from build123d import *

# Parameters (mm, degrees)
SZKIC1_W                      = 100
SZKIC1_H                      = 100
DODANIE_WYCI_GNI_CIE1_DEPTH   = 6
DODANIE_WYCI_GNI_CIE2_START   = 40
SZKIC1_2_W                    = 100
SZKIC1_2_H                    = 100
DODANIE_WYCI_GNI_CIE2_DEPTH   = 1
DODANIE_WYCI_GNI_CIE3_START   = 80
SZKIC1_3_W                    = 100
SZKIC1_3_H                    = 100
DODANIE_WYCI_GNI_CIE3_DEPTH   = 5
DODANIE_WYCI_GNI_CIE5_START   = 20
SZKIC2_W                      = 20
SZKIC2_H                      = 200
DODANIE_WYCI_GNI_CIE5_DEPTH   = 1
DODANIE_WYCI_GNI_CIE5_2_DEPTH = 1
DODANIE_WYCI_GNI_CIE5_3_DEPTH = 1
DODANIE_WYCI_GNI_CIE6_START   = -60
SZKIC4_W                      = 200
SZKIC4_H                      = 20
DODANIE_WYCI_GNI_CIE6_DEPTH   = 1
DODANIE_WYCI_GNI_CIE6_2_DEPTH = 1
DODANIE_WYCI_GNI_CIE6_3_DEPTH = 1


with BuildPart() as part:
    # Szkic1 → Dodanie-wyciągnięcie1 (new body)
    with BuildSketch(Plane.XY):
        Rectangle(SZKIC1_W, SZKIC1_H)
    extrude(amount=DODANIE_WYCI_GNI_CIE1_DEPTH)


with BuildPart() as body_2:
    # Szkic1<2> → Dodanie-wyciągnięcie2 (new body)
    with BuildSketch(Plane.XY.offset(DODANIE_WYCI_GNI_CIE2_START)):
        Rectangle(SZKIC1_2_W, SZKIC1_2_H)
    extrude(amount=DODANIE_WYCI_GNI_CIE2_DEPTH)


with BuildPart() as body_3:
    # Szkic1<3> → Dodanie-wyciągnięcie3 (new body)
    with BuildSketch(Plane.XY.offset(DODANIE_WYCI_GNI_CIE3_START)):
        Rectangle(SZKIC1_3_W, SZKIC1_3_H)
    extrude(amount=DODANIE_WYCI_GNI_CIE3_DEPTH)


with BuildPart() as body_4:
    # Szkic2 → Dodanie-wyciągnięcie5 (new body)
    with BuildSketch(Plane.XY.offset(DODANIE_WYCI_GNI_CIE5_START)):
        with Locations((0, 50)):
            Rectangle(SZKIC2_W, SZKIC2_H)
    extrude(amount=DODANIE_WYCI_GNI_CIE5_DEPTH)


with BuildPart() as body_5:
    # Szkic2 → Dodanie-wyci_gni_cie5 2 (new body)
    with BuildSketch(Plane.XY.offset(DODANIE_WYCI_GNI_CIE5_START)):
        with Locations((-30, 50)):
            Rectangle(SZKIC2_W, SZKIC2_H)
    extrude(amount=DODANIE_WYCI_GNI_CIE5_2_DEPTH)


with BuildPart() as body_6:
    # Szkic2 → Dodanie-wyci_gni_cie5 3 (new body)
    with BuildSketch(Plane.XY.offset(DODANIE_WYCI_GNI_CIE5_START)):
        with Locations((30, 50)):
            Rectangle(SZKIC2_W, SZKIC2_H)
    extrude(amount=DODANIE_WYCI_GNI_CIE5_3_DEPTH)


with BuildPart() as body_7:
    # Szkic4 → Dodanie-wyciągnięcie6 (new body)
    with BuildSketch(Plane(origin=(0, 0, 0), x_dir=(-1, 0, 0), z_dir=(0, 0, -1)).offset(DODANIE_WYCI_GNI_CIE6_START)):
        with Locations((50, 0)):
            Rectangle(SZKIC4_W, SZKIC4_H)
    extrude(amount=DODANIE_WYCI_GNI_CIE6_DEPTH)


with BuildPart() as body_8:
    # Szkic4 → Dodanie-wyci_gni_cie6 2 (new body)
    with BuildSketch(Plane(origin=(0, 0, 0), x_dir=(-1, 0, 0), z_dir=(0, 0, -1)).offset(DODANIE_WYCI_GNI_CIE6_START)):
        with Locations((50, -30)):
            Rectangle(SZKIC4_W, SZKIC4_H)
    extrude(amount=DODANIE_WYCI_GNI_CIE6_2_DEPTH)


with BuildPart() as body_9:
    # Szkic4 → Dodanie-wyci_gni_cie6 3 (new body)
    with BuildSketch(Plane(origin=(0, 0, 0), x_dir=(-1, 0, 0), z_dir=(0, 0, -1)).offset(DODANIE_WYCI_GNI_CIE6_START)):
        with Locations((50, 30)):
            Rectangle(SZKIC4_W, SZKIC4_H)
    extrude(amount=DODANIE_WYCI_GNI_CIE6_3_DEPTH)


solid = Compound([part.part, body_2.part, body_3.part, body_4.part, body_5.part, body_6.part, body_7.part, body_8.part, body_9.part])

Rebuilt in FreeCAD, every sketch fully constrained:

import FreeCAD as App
import Part
import Sketcher
from FreeCAD import Vector


def add_polygon(sketch, points):
    """Adds a closed chain of lines whose ends are joined by coincident constraints."""
    first, n = sketch.GeometryCount, len(points)
    for a, b in zip(points, points[1:] + points[:1]):
        sketch.addGeometry(Part.LineSegment(App.Vector(*a, 0), App.Vector(*b, 0)), False)
    for i in range(n):
        sketch.addConstraint(Sketcher.Constraint("Coincident", first + i, 2, first + (i + 1) % n, 1))

doc = App.newDocument("Part")
body = doc.addObject("PartDesign::Body", "Body")

# Sketch on XY plane
sketch1 = body.newObject("Sketcher::SketchObject", "Sketch")
sketch1.AttachmentSupport = (doc.getObject("XY_Plane"), [""])
sketch1.MapMode = "FlatFace"
add_polygon(sketch1, [(-50, 50), (-50, -50), (50, -50), (50, 50)])  # lines 0-3
sketch1.addConstraint(Sketcher.Constraint("Vertical", 0))
sketch1.addConstraint(Sketcher.Constraint("Horizontal", 1))
sketch1.addConstraint(Sketcher.Constraint("Vertical", 2))
sketch1.addConstraint(Sketcher.Constraint("Horizontal", 3))
sketch1.addConstraint(Sketcher.Constraint("Symmetric", 0, 2, 2, 2, -1, 1))
sketch1.addConstraint(Sketcher.Constraint("Equal", 3, 0))
sketch1.addConstraint(Sketcher.Constraint("DistanceX", 1, 1, 1, 2, 100.0))
pad1 = body.newObject("PartDesign::Pad", "Pad")
pad1.Profile = sketch1
pad1.Length = 6
body2 = doc.addObject("PartDesign::Body", "Body001")

# Sketch on XY plane
sketch2 = body2.newObject("Sketcher::SketchObject", "Sketch001")
sketch2.AttachmentSupport = (doc.getObject("XY_Plane001"), [""])
sketch2.MapMode = "FlatFace"
sketch2.AttachmentOffset = App.Placement(Vector(0, 0, 40), App.Rotation())
add_polygon(sketch2, [(-50, 50), (-50, -50), (50, -50), (50, 50)])  # lines 0-3
sketch2.addConstraint(Sketcher.Constraint("Vertical", 0))
sketch2.addConstraint(Sketcher.Constraint("Horizontal", 1))
sketch2.addConstraint(Sketcher.Constraint("Vertical", 2))
sketch2.addConstraint(Sketcher.Constraint("Horizontal", 3))
sketch2.addConstraint(Sketcher.Constraint("Symmetric", 0, 2, 2, 2, -1, 1))
sketch2.addConstraint(Sketcher.Constraint("Equal", 3, 0))
sketch2.addConstraint(Sketcher.Constraint("DistanceX", 1, 1, 1, 2, 100.0))
pad2 = body2.newObject("PartDesign::Pad", "Pad001")
pad2.Profile = sketch2
pad2.Length = 1
body3 = doc.addObject("PartDesign::Body", "Body002")

# Sketch on XY plane
sketch3 = body3.newObject("Sketcher::SketchObject", "Sketch002")
sketch3.AttachmentSupport = (doc.getObject("XY_Plane002"), [""])
sketch3.MapMode = "FlatFace"
sketch3.AttachmentOffset = App.Placement(Vector(0, 0, 80), App.Rotation())
add_polygon(sketch3, [(-50, 50), (-50, -50), (50, -50), (50, 50)])  # lines 0-3
sketch3.addConstraint(Sketcher.Constraint("Vertical", 0))
sketch3.addConstraint(Sketcher.Constraint("Horizontal", 1))
sketch3.addConstraint(Sketcher.Constraint("Vertical", 2))
sketch3.addConstraint(Sketcher.Constraint("Horizontal", 3))
sketch3.addConstraint(Sketcher.Constraint("Symmetric", 0, 2, 2, 2, -1, 1))
sketch3.addConstraint(Sketcher.Constraint("Equal", 3, 0))
sketch3.addConstraint(Sketcher.Constraint("DistanceX", 1, 1, 1, 2, 100.0))
pad3 = body3.newObject("PartDesign::Pad", "Pad002")
pad3.Profile = sketch3
pad3.Length = 5
body4 = doc.addObject("PartDesign::Body", "Body003")

# Sketch on XY plane
sketch4 = body4.newObject("Sketcher::SketchObject", "Sketch003")
sketch4.AttachmentSupport = (doc.getObject("XY_Plane003"), [""])
sketch4.MapMode = "FlatFace"
sketch4.AttachmentOffset = App.Placement(Vector(0, 0, 20), App.Rotation())
add_polygon(sketch4, [(-10, 150), (-10, -50), (10, -50), (10, 150)])  # lines 0-3
sketch4.addConstraint(Sketcher.Constraint("Vertical", 0))
sketch4.addConstraint(Sketcher.Constraint("Horizontal", 1))
sketch4.addConstraint(Sketcher.Constraint("Vertical", 2))
sketch4.addConstraint(Sketcher.Constraint("Horizontal", 3))
sketch4.addConstraint(Sketcher.Constraint("DistanceX", 1, 1, 1, 2, 20.0))
sketch4.addConstraint(Sketcher.Constraint("DistanceY", 0, 2, 0, 1, 200.0))
sketch4.addConstraint(Sketcher.Constraint("DistanceX", 0, 2, -1, 1, 10.0))
sketch4.addConstraint(Sketcher.Constraint("DistanceY", 0, 2, -1, 1, 50.0))
pad4 = body4.newObject("PartDesign::Pad", "Pad003")
pad4.Profile = sketch4
pad4.Length = 1
body5 = doc.addObject("PartDesign::Body", "Body004")

# Sketch on XY plane
sketch5 = body5.newObject("Sketcher::SketchObject", "Sketch004")
sketch5.AttachmentSupport = (doc.getObject("XY_Plane004"), [""])
sketch5.MapMode = "FlatFace"
sketch5.AttachmentOffset = App.Placement(Vector(0, 0, 20), App.Rotation())
add_polygon(sketch5, [(-40, 150), (-40, -50), (-20, -50), (-20, 150)])  # lines 0-3
sketch5.addConstraint(Sketcher.Constraint("Vertical", 0))
sketch5.addConstraint(Sketcher.Constraint("Horizontal", 1))
sketch5.addConstraint(Sketcher.Constraint("Vertical", 2))
sketch5.addConstraint(Sketcher.Constraint("Horizontal", 3))
sketch5.addConstraint(Sketcher.Constraint("DistanceX", 1, 1, 1, 2, 20.0))
sketch5.addConstraint(Sketcher.Constraint("DistanceY", 0, 2, 0, 1, 200.0))
sketch5.addConstraint(Sketcher.Constraint("DistanceX", 0, 2, -1, 1, 40.0))
sketch5.addConstraint(Sketcher.Constraint("DistanceY", 0, 2, -1, 1, 50.0))
pad5 = body5.newObject("PartDesign::Pad", "Pad004")
pad5.Profile = sketch5
pad5.Length = 1
body6 = doc.addObject("PartDesign::Body", "Body005")

# Sketch on XY plane
sketch6 = body6.newObject("Sketcher::SketchObject", "Sketch005")
sketch6.AttachmentSupport = (doc.getObject("XY_Plane005"), [""])
sketch6.MapMode = "FlatFace"
sketch6.AttachmentOffset = App.Placement(Vector(0, 0, 20), App.Rotation())
add_polygon(sketch6, [(20, 150), (20, -50), (40, -50), (40, 150)])  # lines 0-3
sketch6.addConstraint(Sketcher.Constraint("Vertical", 0))
sketch6.addConstraint(Sketcher.Constraint("Horizontal", 1))
sketch6.addConstraint(Sketcher.Constraint("Vertical", 2))
sketch6.addConstraint(Sketcher.Constraint("Horizontal", 3))
sketch6.addConstraint(Sketcher.Constraint("DistanceX", 1, 1, 1, 2, 20.0))
sketch6.addConstraint(Sketcher.Constraint("DistanceY", 0, 2, 0, 1, 200.0))
sketch6.addConstraint(Sketcher.Constraint("DistanceX", -1, 1, 0, 2, 20.0))
sketch6.addConstraint(Sketcher.Constraint("DistanceY", 0, 2, -1, 1, 50.0))
pad6 = body6.newObject("PartDesign::Pad", "Pad005")
pad6.Profile = sketch6
pad6.Length = 1
body7 = doc.addObject("PartDesign::Body", "Body006")

# Sketch on XY plane
sketch7 = body7.newObject("Sketcher::SketchObject", "Sketch006")
sketch7.AttachmentSupport = (doc.getObject("XY_Plane006"), [""])
sketch7.MapMode = "FlatFace"
sketch7.AttachmentOffset = App.Placement(Vector(0, 0, 60), App.Rotation())
add_polygon(sketch7, [(50, 10), (50, -10), (-150, -10), (-150, 10)])  # lines 0-3
sketch7.addConstraint(Sketcher.Constraint("Vertical", 0))
sketch7.addConstraint(Sketcher.Constraint("Horizontal", 1))
sketch7.addConstraint(Sketcher.Constraint("Vertical", 2))
sketch7.addConstraint(Sketcher.Constraint("Horizontal", 3))
sketch7.addConstraint(Sketcher.Constraint("DistanceX", 1, 2, 1, 1, 200.0))
sketch7.addConstraint(Sketcher.Constraint("DistanceY", 0, 2, 0, 1, 20.0))
sketch7.addConstraint(Sketcher.Constraint("DistanceX", -1, 1, 0, 2, 50.0))
sketch7.addConstraint(Sketcher.Constraint("DistanceY", 0, 2, -1, 1, 10.0))
pad7 = body7.newObject("PartDesign::Pad", "Pad006")
pad7.Profile = sketch7
pad7.Length = 1
pad7.Reversed = True
body8 = doc.addObject("PartDesign::Body", "Body007")

# Sketch on XY plane
sketch8 = body8.newObject("Sketcher::SketchObject", "Sketch007")
sketch8.AttachmentSupport = (doc.getObject("XY_Plane007"), [""])
sketch8.MapMode = "FlatFace"
sketch8.AttachmentOffset = App.Placement(Vector(0, 0, 60), App.Rotation())
add_polygon(sketch8, [(50, -20), (50, -40), (-150, -40), (-150, -20)])  # lines 0-3
sketch8.addConstraint(Sketcher.Constraint("Vertical", 0))
sketch8.addConstraint(Sketcher.Constraint("Horizontal", 1))
sketch8.addConstraint(Sketcher.Constraint("Vertical", 2))
sketch8.addConstraint(Sketcher.Constraint("Horizontal", 3))
sketch8.addConstraint(Sketcher.Constraint("DistanceX", 1, 2, 1, 1, 200.0))
sketch8.addConstraint(Sketcher.Constraint("DistanceY", 0, 2, 0, 1, 20.0))
sketch8.addConstraint(Sketcher.Constraint("DistanceX", -1, 1, 0, 2, 50.0))
sketch8.addConstraint(Sketcher.Constraint("DistanceY", 0, 2, -1, 1, 40.0))
pad8 = body8.newObject("PartDesign::Pad", "Pad007")
pad8.Profile = sketch8
pad8.Length = 1
pad8.Reversed = True
body9 = doc.addObject("PartDesign::Body", "Body008")

# Sketch on XY plane
sketch9 = body9.newObject("Sketcher::SketchObject", "Sketch008")
sketch9.AttachmentSupport = (doc.getObject("XY_Plane008"), [""])
sketch9.MapMode = "FlatFace"
sketch9.AttachmentOffset = App.Placement(Vector(0, 0, 60), App.Rotation())
add_polygon(sketch9, [(50, 40), (50, 20), (-150, 20), (-150, 40)])  # lines 0-3
sketch9.addConstraint(Sketcher.Constraint("Vertical", 0))
sketch9.addConstraint(Sketcher.Constraint("Horizontal", 1))
sketch9.addConstraint(Sketcher.Constraint("Vertical", 2))
sketch9.addConstraint(Sketcher.Constraint("Horizontal", 3))
sketch9.addConstraint(Sketcher.Constraint("DistanceX", 1, 2, 1, 1, 200.0))
sketch9.addConstraint(Sketcher.Constraint("DistanceY", 0, 2, 0, 1, 20.0))
sketch9.addConstraint(Sketcher.Constraint("DistanceX", -1, 1, 0, 2, 50.0))
sketch9.addConstraint(Sketcher.Constraint("DistanceY", -1, 1, 0, 2, 20.0))
pad9 = body9.newObject("PartDesign::Pad", "Pad008")
pad9.Profile = sketch9
pad9.Length = 1
pad9.Reversed = True

doc.recompute()
